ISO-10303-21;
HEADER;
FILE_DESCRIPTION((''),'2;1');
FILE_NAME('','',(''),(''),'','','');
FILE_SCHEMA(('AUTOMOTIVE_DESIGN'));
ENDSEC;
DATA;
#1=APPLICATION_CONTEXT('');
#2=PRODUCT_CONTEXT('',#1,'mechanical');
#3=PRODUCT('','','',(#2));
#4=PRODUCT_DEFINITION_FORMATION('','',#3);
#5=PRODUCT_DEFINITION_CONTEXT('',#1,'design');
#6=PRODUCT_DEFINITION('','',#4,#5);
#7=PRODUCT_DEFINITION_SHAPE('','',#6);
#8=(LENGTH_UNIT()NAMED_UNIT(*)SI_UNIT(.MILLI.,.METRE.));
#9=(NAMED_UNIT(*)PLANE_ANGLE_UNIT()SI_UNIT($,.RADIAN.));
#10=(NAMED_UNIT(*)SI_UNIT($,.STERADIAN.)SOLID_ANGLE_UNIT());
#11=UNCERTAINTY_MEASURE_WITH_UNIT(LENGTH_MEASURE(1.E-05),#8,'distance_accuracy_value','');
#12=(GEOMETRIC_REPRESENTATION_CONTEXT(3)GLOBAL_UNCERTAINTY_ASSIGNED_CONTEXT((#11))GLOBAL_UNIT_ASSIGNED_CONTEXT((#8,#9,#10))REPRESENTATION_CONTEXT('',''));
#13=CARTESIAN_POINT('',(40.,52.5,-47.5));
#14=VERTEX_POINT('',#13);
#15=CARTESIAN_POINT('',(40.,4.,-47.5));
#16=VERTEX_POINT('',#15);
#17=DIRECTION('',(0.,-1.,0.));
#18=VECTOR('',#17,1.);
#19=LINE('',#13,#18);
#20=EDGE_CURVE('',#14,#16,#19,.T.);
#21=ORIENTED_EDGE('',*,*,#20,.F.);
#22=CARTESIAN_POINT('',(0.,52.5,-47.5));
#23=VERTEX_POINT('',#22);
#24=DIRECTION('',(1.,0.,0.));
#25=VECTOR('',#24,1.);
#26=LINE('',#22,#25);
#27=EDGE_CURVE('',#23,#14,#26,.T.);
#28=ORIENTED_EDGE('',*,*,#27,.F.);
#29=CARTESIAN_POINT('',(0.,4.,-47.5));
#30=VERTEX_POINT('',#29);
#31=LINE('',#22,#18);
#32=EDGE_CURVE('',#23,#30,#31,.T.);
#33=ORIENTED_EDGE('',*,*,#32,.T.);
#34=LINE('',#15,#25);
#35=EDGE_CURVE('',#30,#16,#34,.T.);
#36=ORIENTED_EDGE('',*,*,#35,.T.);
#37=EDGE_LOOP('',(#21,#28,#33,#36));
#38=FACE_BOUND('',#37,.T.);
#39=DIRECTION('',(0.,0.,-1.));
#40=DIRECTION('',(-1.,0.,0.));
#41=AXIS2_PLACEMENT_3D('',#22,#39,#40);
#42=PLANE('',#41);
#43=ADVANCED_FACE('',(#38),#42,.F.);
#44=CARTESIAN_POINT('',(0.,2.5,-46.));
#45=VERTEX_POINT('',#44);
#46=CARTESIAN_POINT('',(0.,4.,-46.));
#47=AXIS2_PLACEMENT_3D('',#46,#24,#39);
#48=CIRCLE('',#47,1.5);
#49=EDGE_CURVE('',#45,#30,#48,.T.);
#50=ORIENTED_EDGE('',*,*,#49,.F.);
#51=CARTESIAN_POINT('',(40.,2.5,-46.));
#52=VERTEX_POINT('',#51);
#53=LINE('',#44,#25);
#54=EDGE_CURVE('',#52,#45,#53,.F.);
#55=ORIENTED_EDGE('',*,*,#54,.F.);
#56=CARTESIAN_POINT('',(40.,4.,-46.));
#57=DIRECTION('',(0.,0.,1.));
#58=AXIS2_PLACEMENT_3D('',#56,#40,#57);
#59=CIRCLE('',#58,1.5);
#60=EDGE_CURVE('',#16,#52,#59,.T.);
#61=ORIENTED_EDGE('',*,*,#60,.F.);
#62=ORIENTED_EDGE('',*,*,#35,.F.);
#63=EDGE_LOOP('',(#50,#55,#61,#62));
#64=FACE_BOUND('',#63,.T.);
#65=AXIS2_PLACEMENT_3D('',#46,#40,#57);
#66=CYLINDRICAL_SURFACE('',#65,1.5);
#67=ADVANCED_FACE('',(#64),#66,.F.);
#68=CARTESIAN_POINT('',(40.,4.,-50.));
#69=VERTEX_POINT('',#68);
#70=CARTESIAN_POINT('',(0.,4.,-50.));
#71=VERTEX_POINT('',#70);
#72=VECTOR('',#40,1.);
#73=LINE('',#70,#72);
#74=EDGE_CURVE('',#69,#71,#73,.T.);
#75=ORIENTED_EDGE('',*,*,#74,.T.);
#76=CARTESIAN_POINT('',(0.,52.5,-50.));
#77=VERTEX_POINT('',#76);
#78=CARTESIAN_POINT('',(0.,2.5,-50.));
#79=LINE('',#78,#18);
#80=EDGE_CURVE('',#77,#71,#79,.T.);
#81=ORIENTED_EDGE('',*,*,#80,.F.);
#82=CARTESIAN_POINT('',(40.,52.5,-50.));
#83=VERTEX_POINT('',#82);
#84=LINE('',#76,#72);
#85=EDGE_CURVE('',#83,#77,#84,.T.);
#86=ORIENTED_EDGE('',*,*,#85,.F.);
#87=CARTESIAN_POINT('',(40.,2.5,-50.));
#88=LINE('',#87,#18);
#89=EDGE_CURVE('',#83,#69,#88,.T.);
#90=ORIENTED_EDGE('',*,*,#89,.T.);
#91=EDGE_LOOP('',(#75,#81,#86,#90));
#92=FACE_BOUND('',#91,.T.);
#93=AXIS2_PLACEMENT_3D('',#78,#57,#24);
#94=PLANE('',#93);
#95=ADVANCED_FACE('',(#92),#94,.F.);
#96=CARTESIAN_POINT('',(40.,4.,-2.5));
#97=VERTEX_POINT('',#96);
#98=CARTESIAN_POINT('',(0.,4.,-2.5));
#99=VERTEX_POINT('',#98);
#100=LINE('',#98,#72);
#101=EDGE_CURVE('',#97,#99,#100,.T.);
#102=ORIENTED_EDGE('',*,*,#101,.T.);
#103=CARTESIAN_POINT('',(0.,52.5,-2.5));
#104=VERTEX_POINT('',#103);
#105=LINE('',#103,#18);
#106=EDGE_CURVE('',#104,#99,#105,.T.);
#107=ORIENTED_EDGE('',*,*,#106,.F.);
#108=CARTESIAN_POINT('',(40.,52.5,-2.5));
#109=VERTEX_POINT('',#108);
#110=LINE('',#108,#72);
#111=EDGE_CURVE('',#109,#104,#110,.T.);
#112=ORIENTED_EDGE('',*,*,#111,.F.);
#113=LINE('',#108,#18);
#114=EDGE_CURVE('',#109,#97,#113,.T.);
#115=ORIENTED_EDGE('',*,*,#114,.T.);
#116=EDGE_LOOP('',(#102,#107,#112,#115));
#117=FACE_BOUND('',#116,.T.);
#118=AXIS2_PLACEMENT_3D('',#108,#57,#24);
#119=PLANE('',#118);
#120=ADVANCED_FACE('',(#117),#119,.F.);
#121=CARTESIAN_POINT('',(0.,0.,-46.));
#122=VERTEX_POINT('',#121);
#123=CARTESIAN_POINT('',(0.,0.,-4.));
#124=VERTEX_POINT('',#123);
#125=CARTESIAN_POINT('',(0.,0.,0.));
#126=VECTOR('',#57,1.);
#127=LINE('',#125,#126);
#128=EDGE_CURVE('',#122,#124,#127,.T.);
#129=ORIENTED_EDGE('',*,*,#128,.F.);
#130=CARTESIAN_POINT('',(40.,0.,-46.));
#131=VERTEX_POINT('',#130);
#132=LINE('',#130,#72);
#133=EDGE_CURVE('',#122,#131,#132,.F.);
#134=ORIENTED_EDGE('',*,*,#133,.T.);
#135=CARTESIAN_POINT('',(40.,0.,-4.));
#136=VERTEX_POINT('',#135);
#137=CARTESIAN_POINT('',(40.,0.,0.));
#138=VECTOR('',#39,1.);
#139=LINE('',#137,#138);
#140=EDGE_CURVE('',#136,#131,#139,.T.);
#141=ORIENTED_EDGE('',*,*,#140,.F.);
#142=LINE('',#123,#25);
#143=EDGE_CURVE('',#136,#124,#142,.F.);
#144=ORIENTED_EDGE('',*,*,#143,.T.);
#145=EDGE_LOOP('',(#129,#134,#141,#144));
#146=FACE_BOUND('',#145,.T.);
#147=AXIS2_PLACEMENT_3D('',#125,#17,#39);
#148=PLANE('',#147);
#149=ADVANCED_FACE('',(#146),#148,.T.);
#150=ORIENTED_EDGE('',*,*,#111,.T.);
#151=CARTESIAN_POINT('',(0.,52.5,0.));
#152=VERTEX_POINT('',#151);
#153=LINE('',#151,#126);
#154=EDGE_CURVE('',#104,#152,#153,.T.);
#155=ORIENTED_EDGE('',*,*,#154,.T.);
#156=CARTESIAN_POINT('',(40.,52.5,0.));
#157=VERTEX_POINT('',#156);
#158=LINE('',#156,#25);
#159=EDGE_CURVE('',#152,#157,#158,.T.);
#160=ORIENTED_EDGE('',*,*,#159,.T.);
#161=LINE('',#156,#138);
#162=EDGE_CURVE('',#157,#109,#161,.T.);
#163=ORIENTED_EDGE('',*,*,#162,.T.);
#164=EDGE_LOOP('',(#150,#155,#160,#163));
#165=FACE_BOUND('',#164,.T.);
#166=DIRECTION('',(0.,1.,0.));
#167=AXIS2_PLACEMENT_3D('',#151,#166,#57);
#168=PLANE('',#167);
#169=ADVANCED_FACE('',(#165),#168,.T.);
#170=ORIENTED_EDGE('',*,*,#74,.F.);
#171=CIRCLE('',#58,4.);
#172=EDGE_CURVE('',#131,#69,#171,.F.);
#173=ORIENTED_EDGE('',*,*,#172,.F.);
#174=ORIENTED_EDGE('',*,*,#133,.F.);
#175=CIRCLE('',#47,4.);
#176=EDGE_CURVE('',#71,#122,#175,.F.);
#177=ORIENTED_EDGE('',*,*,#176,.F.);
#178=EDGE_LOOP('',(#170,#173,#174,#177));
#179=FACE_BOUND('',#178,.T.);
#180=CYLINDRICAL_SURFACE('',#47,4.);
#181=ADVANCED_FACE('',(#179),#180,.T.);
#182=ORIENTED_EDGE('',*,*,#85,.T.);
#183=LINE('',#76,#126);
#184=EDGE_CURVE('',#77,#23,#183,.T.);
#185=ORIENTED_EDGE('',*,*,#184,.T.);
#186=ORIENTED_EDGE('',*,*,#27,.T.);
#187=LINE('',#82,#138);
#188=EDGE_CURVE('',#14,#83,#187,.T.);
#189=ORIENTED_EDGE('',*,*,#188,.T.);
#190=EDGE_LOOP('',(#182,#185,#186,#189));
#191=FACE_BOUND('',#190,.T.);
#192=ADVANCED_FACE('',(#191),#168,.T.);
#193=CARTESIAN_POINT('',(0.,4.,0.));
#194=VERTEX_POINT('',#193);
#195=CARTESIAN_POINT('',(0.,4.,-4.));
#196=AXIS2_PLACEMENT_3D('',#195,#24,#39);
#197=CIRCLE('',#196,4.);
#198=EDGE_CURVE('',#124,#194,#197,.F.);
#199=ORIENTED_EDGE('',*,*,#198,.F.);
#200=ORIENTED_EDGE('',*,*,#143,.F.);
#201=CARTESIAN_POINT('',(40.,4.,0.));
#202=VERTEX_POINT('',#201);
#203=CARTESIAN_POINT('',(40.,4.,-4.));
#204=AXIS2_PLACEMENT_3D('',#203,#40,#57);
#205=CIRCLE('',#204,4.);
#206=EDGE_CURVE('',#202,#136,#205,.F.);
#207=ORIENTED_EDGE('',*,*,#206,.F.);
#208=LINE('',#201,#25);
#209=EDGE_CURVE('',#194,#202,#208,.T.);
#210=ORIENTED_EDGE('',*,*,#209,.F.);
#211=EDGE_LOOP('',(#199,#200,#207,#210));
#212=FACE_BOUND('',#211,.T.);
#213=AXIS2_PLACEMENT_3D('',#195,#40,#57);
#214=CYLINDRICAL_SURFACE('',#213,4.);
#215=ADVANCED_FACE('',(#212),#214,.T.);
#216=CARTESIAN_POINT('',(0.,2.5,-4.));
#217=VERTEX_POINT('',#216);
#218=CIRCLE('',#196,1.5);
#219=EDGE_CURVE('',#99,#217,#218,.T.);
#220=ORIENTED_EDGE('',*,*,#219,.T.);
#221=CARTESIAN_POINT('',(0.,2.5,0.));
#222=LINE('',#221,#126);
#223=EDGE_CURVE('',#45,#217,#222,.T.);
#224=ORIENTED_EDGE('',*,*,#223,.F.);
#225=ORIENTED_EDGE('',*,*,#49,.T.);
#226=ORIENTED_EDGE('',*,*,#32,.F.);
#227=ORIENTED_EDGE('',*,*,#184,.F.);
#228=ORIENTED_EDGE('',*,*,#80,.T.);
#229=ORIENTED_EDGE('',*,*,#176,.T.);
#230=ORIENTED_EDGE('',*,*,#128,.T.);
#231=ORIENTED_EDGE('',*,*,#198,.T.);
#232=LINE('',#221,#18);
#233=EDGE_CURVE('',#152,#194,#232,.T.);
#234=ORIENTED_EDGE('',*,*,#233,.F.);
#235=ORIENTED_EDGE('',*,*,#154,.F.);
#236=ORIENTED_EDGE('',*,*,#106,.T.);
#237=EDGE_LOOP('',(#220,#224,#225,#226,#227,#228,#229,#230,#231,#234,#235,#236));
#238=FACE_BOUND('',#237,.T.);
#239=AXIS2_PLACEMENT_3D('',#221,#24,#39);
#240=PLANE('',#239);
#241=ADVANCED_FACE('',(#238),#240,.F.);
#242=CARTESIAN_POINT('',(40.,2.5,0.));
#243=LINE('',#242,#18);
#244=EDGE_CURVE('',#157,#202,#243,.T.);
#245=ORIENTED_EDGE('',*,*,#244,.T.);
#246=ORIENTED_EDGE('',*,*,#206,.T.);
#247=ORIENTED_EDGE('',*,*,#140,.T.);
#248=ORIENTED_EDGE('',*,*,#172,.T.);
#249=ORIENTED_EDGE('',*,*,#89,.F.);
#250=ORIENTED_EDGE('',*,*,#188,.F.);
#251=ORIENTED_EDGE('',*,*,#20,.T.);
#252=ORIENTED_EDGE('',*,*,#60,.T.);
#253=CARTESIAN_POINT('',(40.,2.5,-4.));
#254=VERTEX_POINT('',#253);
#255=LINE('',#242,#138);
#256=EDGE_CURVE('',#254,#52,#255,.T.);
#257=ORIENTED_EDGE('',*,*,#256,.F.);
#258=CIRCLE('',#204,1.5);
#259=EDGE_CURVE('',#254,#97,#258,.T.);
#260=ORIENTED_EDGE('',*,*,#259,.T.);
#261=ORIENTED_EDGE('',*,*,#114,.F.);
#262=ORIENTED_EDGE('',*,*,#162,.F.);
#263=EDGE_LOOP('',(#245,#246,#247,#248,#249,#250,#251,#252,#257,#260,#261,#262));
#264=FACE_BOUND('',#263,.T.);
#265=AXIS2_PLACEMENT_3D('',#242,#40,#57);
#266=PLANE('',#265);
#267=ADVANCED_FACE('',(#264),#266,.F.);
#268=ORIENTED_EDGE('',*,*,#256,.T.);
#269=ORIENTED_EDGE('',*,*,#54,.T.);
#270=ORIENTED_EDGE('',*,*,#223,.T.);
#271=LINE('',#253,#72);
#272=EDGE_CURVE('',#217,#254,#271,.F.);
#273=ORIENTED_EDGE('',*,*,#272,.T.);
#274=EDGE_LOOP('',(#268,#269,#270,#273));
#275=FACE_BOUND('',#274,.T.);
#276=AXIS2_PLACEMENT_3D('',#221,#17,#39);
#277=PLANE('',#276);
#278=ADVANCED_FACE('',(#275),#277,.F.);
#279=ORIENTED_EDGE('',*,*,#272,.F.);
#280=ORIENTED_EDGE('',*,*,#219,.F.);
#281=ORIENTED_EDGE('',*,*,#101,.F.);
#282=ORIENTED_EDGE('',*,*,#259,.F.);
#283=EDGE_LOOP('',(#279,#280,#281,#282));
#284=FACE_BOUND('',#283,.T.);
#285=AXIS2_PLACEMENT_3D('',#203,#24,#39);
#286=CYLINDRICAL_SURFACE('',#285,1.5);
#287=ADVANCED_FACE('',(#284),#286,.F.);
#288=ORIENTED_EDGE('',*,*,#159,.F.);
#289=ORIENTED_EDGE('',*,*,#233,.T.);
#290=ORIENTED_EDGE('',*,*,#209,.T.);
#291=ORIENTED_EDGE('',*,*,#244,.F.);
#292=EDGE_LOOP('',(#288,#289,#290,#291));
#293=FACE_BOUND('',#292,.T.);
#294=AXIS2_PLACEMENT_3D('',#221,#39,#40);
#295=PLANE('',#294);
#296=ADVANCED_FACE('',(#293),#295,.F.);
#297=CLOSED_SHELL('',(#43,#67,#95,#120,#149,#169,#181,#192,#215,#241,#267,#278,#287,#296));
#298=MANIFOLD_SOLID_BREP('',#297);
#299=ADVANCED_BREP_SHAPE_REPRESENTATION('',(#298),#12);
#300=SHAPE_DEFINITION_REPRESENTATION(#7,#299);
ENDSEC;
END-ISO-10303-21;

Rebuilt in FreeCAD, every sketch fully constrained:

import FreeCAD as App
import Part
import Sketcher
Q = App.Units.Quantity


def edges_at(feature, points):
    """Names of the edges that pass closest to the given points."""
    edges = feature.Shape.Edges
    near = lambda p: min(range(len(edges)), key=lambda i: edges[i].distToShape(Part.Vertex(*p))[0])
    return sorted({f"Edge{near(p) + 1}" for p in points})


def add_polygon(sketch, points):
    """Adds a closed chain of lines whose ends are joined by coincident constraints."""
    first, n = sketch.GeometryCount, len(points)
    for a, b in zip(points, points[1:] + points[:1]):
        sketch.addGeometry(Part.LineSegment(App.Vector(*a, 0), App.Vector(*b, 0)), False)
    for i in range(n):
        sketch.addConstraint(Sketcher.Constraint("Coincident", first + i, 2, first + (i + 1) % n, 1))

doc = App.newDocument("Part")
body = doc.addObject("PartDesign::Body", "Body")

# Sketch on XZ plane
sketch1 = body.newObject("Sketcher::SketchObject", "Sketch")
sketch1.AttachmentSupport = (doc.getObject("XZ_Plane"), [""])
sketch1.MapMode = "FlatFace"
add_polygon(sketch1, [(0, -50), (0, 0), (40, 0), (40, -50)])  # lines 0-3
sketch1.addConstraint([
    Sketcher.Constraint("Vertical", 0),
    Sketcher.Constraint("Horizontal", 1),
    Sketcher.Constraint("Vertical", 2),
    Sketcher.Constraint("Horizontal", 3),
    Sketcher.Constraint("Coincident", 0, 2, -1, 1),
    Sketcher.Constraint("DistanceX", 1, 1, 1, 2, Q("40 mm")),
    Sketcher.Constraint("DistanceY", 0, 1, 0, 2, Q("50 mm")),
])
pad1 = body.newObject("PartDesign::Pad", "Pad")
pad1.Profile = sketch1
pad1.Length = 2.5
pad1.Reversed = True

# Sketch on XZ plane
sketch2 = body.newObject("Sketcher::SketchObject", "Sketch001")
sketch2.AttachmentSupport = (doc.getObject("XZ_Plane"), [""])
sketch2.MapMode = "FlatFace"
sketch2.AttachmentOffset = App.Placement(App.Vector(0, 0, -2.5), App.Rotation())
add_polygon(sketch2, [(0, -50), (0, -47.5), (40, -47.5), (40, -50)])  # lines 0-3
add_polygon(sketch2, [(0, -2.5), (0, 0), (40, 0), (40, -2.5)])  # lines 4-7
sketch2.addConstraint([
    Sketcher.Constraint("Vertical", 0),
    Sketcher.Constraint("Horizontal", 1),
    Sketcher.Constraint("Vertical", 2),
    Sketcher.Constraint("Horizontal", 3),
    Sketcher.Constraint("Vertical", 4),
    Sketcher.Constraint("Horizontal", 5),
    Sketcher.Constraint("Vertical", 6),
    Sketcher.Constraint("Horizontal", 7),
    Sketcher.Constraint("Coincident", 4, 2, -1, 1),
    Sketcher.Constraint("PointOnObject", 0, 2, -2),
    Sketcher.Constraint("Vertical", 2, 2, 5, 2),
    Sketcher.Constraint("Equal", 2, 4),
    Sketcher.Constraint("DistanceX", 1, 1, 1, 2, Q("40 mm")),
    Sketcher.Constraint("DistanceY", 0, 1, 0, 2, Q("2.5 mm")),
    Sketcher.Constraint("DistanceY", 2, 2, -1, 1, Q("50 mm")),
])
pad2 = body.newObject("PartDesign::Pad", "Pad001")
pad2.Profile = sketch2
pad2.Length = 50
pad2.Reversed = True
doc.recompute()

fillet = body.newObject("PartDesign::Fillet", "Fillet")
fillet.Base = (pad2, edges_at(pad2, [(20, 0, -50), (20, 0, 0)]))
fillet.Radius = 4
doc.recompute()

fillet2 = body.newObject("PartDesign::Fillet", "Fillet001")
fillet2.Base = (fillet, edges_at(fillet, [(20, 2.5, -47.5), (20, 2.5, -2.5)]))
fillet2.Radius = 1.5

doc.recompute()
